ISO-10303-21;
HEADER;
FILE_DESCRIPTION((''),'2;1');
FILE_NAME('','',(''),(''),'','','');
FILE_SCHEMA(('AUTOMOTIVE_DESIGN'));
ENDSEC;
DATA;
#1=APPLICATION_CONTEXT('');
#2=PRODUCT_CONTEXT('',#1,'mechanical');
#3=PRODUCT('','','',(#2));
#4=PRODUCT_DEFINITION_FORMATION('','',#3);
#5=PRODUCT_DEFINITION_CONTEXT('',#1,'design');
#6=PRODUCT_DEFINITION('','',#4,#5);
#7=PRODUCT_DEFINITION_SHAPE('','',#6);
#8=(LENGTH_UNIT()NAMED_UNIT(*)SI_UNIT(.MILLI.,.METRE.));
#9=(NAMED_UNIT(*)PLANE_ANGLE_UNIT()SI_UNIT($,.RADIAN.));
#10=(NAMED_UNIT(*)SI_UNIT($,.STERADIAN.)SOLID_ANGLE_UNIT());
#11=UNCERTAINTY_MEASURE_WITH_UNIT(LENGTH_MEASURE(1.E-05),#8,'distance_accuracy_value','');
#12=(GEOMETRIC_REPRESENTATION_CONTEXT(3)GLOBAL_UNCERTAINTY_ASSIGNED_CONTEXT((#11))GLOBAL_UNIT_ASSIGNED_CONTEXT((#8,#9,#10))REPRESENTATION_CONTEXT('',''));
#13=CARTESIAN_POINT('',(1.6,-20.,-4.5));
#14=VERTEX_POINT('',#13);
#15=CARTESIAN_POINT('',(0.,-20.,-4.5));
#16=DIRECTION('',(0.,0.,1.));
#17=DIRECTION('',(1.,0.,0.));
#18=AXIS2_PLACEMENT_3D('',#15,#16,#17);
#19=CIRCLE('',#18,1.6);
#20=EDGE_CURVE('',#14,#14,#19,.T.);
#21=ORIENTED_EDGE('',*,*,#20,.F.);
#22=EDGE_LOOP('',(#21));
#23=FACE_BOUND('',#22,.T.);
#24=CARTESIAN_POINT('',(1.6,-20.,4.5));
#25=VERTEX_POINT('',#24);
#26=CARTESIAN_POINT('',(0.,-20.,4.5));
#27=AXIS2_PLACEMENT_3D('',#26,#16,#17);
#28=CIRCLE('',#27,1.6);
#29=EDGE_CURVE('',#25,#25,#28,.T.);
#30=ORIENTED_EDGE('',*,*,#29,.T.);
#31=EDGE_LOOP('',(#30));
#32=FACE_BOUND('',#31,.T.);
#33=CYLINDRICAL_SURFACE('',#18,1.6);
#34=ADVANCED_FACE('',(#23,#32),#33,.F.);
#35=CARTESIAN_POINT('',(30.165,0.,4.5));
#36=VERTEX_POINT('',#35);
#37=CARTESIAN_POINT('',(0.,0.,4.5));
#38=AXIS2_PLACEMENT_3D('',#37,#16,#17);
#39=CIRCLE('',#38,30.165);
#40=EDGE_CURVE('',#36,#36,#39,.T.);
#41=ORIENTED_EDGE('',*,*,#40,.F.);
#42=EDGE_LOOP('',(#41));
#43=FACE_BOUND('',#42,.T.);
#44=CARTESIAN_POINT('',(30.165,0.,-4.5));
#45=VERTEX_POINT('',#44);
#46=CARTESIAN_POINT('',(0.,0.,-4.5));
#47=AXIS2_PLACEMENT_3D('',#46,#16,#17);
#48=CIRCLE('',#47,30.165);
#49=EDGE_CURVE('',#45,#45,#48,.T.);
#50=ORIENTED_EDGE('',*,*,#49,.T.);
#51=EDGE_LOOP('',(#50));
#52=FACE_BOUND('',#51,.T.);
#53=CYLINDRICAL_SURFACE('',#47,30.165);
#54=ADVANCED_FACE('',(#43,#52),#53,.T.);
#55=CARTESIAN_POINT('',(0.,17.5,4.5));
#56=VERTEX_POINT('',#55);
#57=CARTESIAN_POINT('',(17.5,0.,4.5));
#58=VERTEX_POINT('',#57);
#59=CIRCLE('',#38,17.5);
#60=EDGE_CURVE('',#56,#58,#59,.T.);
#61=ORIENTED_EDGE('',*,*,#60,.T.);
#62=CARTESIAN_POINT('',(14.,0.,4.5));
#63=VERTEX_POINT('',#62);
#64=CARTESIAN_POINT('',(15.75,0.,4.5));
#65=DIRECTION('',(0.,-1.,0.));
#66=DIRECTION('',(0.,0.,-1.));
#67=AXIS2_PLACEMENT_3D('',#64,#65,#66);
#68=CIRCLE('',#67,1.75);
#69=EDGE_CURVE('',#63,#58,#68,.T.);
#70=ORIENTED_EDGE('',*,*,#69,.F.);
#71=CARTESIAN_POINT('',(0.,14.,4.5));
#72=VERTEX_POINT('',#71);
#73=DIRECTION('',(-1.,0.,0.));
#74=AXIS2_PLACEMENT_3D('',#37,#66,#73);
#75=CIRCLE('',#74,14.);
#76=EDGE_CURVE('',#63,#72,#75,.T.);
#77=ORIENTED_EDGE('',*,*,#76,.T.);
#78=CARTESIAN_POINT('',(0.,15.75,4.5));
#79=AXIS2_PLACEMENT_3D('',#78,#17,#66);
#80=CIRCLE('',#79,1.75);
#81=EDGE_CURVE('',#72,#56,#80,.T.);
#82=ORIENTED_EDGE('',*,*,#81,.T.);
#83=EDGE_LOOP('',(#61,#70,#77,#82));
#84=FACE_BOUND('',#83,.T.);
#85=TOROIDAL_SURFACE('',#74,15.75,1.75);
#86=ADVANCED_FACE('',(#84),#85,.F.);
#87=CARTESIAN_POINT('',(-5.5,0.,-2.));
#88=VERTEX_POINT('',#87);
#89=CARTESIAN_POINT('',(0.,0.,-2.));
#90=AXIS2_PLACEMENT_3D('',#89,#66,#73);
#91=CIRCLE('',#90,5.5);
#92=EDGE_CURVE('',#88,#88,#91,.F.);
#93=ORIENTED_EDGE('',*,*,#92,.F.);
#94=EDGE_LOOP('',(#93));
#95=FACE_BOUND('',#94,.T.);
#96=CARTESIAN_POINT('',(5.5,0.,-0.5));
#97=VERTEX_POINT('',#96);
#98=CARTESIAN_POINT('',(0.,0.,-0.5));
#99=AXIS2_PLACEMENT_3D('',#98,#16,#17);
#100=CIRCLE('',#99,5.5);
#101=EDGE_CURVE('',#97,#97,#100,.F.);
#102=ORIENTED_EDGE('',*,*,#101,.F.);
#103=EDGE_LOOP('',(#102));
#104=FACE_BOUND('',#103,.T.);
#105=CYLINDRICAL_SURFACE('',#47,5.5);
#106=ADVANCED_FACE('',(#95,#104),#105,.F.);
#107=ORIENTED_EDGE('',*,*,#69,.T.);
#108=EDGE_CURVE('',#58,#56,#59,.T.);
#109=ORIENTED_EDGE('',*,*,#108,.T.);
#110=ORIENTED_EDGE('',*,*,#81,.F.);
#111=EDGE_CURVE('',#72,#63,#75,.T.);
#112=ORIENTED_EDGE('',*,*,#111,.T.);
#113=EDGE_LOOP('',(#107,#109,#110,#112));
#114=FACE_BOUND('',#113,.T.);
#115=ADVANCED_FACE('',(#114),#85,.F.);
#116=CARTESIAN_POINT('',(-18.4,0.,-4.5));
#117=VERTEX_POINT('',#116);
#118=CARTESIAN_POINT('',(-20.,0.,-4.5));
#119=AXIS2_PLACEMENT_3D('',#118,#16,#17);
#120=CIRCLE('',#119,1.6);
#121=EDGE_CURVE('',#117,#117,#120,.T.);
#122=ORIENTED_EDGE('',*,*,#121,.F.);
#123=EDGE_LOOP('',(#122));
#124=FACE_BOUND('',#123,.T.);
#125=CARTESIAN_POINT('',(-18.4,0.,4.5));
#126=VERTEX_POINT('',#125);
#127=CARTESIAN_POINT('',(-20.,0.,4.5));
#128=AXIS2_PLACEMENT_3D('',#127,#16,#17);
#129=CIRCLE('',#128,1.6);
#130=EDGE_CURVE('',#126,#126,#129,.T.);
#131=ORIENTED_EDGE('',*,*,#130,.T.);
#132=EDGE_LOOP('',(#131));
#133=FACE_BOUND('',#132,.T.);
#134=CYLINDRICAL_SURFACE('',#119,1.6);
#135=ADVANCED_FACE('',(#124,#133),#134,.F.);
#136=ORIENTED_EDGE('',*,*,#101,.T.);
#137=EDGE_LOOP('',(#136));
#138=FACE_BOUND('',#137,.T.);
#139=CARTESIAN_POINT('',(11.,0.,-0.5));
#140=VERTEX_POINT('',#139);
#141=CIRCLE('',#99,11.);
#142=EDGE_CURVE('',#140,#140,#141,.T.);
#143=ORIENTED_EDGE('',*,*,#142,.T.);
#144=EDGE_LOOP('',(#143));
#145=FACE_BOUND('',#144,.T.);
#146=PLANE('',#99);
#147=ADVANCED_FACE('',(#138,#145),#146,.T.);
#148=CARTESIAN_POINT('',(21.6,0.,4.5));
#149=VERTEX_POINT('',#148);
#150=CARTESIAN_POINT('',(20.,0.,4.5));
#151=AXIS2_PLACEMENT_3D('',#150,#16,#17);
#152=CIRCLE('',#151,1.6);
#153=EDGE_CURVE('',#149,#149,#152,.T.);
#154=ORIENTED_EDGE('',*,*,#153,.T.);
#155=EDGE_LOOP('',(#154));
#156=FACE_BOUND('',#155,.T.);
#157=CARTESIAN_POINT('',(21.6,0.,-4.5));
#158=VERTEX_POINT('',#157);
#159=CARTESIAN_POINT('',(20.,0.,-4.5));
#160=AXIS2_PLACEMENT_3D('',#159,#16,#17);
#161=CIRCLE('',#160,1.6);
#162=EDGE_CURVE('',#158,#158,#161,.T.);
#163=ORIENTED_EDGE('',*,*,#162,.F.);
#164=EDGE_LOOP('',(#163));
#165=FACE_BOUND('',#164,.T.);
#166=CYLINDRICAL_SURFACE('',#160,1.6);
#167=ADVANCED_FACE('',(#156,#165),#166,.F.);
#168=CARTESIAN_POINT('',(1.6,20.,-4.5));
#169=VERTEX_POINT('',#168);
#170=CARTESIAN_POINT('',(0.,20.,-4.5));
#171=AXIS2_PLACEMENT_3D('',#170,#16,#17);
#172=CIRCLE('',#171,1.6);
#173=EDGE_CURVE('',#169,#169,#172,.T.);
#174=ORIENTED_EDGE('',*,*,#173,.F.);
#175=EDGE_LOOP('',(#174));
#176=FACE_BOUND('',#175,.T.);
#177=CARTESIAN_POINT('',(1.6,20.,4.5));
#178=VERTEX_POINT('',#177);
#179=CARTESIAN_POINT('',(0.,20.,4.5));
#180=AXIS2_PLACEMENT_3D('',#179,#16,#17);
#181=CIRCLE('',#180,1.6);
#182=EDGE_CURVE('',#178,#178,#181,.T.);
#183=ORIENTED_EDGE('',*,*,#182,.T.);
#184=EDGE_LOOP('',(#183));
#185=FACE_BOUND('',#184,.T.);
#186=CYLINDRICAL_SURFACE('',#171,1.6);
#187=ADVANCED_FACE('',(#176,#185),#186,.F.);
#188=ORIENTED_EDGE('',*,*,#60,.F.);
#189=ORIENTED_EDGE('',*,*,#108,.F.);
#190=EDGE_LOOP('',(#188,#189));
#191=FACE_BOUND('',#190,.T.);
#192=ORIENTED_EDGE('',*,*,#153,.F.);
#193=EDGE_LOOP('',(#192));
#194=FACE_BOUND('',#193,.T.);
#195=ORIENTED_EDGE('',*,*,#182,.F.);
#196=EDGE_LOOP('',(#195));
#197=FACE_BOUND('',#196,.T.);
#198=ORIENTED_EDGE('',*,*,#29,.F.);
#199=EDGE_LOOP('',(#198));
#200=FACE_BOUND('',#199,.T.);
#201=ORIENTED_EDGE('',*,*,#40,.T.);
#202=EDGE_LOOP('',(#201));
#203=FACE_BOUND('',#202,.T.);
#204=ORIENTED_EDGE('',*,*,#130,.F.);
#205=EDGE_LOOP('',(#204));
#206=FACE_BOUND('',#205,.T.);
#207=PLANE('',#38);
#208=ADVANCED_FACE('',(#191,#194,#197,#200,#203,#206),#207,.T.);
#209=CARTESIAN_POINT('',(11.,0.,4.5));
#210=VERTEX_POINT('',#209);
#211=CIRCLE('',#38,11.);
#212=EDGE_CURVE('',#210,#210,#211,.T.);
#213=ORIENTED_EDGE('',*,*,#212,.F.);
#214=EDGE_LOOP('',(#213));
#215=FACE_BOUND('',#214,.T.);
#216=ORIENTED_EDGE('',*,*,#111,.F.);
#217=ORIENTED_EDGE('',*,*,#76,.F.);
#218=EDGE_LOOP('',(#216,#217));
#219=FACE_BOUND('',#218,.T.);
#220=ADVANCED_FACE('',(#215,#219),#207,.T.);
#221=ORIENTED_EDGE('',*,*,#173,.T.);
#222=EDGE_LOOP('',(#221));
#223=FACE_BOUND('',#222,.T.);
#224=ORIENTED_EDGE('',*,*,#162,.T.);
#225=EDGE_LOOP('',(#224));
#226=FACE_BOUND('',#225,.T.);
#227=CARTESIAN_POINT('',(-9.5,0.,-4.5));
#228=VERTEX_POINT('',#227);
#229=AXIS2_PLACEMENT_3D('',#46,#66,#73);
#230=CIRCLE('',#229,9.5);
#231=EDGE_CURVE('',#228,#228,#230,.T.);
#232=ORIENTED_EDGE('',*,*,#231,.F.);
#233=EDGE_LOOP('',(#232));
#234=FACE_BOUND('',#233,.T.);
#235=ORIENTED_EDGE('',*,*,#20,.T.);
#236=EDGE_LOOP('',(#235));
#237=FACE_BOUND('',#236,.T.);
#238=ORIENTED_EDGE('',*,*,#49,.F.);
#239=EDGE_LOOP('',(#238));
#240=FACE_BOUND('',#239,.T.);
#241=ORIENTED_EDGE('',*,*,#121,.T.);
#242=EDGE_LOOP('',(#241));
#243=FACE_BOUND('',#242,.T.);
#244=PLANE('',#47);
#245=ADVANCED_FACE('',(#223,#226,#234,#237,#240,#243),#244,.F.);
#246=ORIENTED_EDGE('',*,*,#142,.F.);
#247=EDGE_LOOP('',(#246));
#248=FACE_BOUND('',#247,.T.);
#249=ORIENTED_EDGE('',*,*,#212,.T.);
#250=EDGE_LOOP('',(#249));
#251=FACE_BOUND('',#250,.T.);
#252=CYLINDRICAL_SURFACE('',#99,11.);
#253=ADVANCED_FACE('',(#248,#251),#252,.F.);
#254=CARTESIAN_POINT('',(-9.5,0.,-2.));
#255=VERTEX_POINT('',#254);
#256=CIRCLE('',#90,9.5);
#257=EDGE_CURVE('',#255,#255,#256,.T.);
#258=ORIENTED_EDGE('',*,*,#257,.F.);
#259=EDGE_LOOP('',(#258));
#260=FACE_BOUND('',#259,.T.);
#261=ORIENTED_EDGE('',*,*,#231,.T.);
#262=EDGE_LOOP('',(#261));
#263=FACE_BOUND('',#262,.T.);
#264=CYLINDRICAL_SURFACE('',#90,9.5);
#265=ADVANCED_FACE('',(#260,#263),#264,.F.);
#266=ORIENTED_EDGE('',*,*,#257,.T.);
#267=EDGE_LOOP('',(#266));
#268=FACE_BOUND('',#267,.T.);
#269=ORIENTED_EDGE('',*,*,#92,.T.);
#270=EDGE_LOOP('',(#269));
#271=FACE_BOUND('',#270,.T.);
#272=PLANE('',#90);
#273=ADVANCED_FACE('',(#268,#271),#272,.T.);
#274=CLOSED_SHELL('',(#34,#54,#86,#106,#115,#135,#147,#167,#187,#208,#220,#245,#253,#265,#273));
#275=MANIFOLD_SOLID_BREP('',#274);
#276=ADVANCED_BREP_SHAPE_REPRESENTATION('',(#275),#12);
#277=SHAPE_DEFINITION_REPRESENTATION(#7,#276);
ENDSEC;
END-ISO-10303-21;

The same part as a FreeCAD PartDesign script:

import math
import FreeCAD as App
import Part
import Sketcher
Q = App.Units.Quantity

doc = App.newDocument("Part")
body = doc.addObject("PartDesign::Body", "Body")

sketch1 = body.newObject("Sketcher::SketchObject", "Sketch")
sketch1.AttachmentSupport = (doc.getObject("XY_Plane"), [""])
sketch1.MapMode = "FlatFace"
sketch1.addGeometry(Part.Circle(App.Vector(0, 0, 0), App.Vector(0, 0, 1), 30.2), False)
sketch1.addGeometry(Part.Circle(App.Vector(0, -20, 0), App.Vector(0, 0, 1), 1.6), False)
sketch1.addGeometry(Part.Circle(App.Vector(-20, 0, 0), App.Vector(0, 0, 1), 1.6), False)
sketch1.addGeometry(Part.Circle(App.Vector(0, 0, 0), App.Vector(0, 0, 1), 5.5), False)
sketch1.addGeometry(Part.Circle(App.Vector(20, 0, 0), App.Vector(0, 0, 1), 1.6), False)
sketch1.addGeometry(Part.Circle(App.Vector(0, 20, 0), App.Vector(0, 0, 1), 1.6), False)
sketch1.addConstraint(Sketcher.Constraint("Coincident", 0, 3, -1, 1))
sketch1.addConstraint(Sketcher.Constraint("Coincident", 3, 3, -1, 1))
sketch1.addConstraint(Sketcher.Constraint("Equal", 1, 2))
sketch1.addConstraint(Sketcher.Constraint("Equal", 2, 4))
sketch1.addConstraint(Sketcher.Constraint("Equal", 4, 5))
sketch1.addConstraint(Sketcher.Constraint("Symmetric", 2, 3, 4, 3, -1, 1))
sketch1.addConstraint(Sketcher.Constraint("Symmetric", 1, 3, 5, 3, -1, 1))
sketch1.addConstraint(Sketcher.Constraint("PointOnObject", 1, 3, -2))
sketch1.addConstraint(Sketcher.Constraint("PointOnObject", 2, 3, -1))
sketch1.addConstraint(Sketcher.Constraint("Diameter", 3, Q("11 mm")))
sketch1.addConstraint(Sketcher.Constraint("Diameter", 1, Q("3.2 mm")))
sketch1.addConstraint(Sketcher.Constraint("Diameter", 0, Q("60.33 mm")))
sketch1.addConstraint(Sketcher.Constraint("DistanceY", 1, 3, -1, 1, Q("20 mm")))
sketch1.addConstraint(Sketcher.Constraint("DistanceX", 2, 3, -1, 1, Q("20 mm")))
pad1 = body.newObject("PartDesign::Pad", "Pad")
pad1.Profile = sketch1
pad1.Type = "TwoLengths"
pad1.Length = 4.5
pad1.Length2 = 4.5

sketch2 = body.newObject("Sketcher::SketchObject", "Sketch001")
sketch2.AttachmentSupport = (doc.getObject("XY_Plane"), [""])
sketch2.MapMode = "FlatFace"
sketch2.AttachmentOffset = App.Placement(App.Vector(0, 0, -4.5), App.Rotation())
sketch2.addGeometry(Part.Circle(App.Vector(0, 0, 0), App.Vector(0, 0, 1), 10), False)
sketch2.addConstraint(Sketcher.Constraint("Coincident", 0, 3, -1, 1))
sketch2.addConstraint(Sketcher.Constraint("Diameter", 0, Q("19 mm")))
pocket1 = body.newObject("PartDesign::Pocket", "Pocket")
pocket1.Profile = sketch2
pocket1.Length = 2.5
pocket1.Reversed = True

sketch3 = body.newObject("Sketcher::SketchObject", "Sketch002")
sketch3.AttachmentSupport = (doc.getObject("XY_Plane"), [""])
sketch3.MapMode = "FlatFace"
sketch3.AttachmentOffset = App.Placement(App.Vector(0, 0, 4.5), App.Rotation())
sketch3.addGeometry(Part.Circle(App.Vector(0, 0, 0), App.Vector(0, 0, 1), 11), False)
sketch3.addConstraint(Sketcher.Constraint("Coincident", 0, 3, -1, 1))
sketch3.addConstraint(Sketcher.Constraint("Diameter", 0, Q("22 mm")))
pocket2 = body.newObject("PartDesign::Pocket", "Pocket001")
pocket2.Profile = sketch3
pocket2.Length = 5

sketch4 = body.newObject("Sketcher::SketchObject", "Sketch003")
sketch4.AttachmentSupport = (doc.getObject("YZ_Plane"), [""])
sketch4.MapMode = "FlatFace"
sketch4.addGeometry(Part.Circle(App.Vector(15.8, 4.5, 0), App.Vector(0, 0, 1), 1.8), False)
sketch4.addConstraint(Sketcher.Constraint("Diameter", 0, Q("3.5 mm")))
sketch4.addConstraint(Sketcher.Constraint("DistanceY", -1, 1, 0, 3, Q("4.5 mm")))
sketch4.addConstraint(Sketcher.Constraint("DistanceX", -1, 1, 0, 3, Q("15.75 mm")))

sketch5 = body.newObject("Sketcher::SketchObject", "Sketch004")
sketch5.AttachmentSupport = (doc.getObject("XY_Plane"), [""])
sketch5.MapMode = "FlatFace"
sketch5.AttachmentOffset = App.Placement(App.Vector(0, 0, 4.5), App.Rotation())
sketch5.addGeometry(Part.ArcOfCircle(Part.Circle(App.Vector(0, 0, 0), App.Vector(0, 0, 1), 11), math.radians(0), math.radians(90)), False)
sketch5.addGeometry(Part.ArcOfCircle(Part.Circle(App.Vector(0, 0, 0), App.Vector(0, 0, 1), 11), math.radians(90), math.radians(180)), False)
sketch5.addGeometry(Part.ArcOfCircle(Part.Circle(App.Vector(0, 0, 0), App.Vector(0, 0, 1), 11), math.radians(180), math.radians(270)), False)
sketch5.addGeometry(Part.ArcOfCircle(Part.Circle(App.Vector(0, 0, 0), App.Vector(0, 0, 1), 11), math.radians(-90), math.radians(0)), False)
sketch5.addConstraint(Sketcher.Constraint("Tangent", 0, 2, 1, 1))
sketch5.addConstraint(Sketcher.Constraint("Tangent", 1, 2, 2, 1))
sketch5.addConstraint(Sketcher.Constraint("Tangent", 2, 2, 3, 1))
sketch5.addConstraint(Sketcher.Constraint("Tangent", 3, 2, 0, 1))
sketch5.addConstraint(Sketcher.Constraint("Coincident", 0, 3, -1, 1))
sketch5.addConstraint(Sketcher.Constraint("Equal", 0, 1))
sketch5.addConstraint(Sketcher.Constraint("PointOnObject", 0, 2, -2))
sketch5.addConstraint(Sketcher.Constraint("PointOnObject", 1, 2, -1))
sketch5.addConstraint(Sketcher.Constraint("PointOnObject", 2, 2, -2))
sketch5.addConstraint(Sketcher.Constraint("PointOnObject", 3, 2, -1))
sketch5.addConstraint(Sketcher.Constraint("Radius", 0, Q("11 mm")))
doc.recompute()

subtractivepipe = body.newObject("PartDesign::SubtractivePipe", "SubtractivePipe")
subtractivepipe.Profile = sketch4
subtractivepipe.Spine = (sketch5, ["Edge1", "Edge2", "Edge3", "Edge4"])

doc.recompute()
